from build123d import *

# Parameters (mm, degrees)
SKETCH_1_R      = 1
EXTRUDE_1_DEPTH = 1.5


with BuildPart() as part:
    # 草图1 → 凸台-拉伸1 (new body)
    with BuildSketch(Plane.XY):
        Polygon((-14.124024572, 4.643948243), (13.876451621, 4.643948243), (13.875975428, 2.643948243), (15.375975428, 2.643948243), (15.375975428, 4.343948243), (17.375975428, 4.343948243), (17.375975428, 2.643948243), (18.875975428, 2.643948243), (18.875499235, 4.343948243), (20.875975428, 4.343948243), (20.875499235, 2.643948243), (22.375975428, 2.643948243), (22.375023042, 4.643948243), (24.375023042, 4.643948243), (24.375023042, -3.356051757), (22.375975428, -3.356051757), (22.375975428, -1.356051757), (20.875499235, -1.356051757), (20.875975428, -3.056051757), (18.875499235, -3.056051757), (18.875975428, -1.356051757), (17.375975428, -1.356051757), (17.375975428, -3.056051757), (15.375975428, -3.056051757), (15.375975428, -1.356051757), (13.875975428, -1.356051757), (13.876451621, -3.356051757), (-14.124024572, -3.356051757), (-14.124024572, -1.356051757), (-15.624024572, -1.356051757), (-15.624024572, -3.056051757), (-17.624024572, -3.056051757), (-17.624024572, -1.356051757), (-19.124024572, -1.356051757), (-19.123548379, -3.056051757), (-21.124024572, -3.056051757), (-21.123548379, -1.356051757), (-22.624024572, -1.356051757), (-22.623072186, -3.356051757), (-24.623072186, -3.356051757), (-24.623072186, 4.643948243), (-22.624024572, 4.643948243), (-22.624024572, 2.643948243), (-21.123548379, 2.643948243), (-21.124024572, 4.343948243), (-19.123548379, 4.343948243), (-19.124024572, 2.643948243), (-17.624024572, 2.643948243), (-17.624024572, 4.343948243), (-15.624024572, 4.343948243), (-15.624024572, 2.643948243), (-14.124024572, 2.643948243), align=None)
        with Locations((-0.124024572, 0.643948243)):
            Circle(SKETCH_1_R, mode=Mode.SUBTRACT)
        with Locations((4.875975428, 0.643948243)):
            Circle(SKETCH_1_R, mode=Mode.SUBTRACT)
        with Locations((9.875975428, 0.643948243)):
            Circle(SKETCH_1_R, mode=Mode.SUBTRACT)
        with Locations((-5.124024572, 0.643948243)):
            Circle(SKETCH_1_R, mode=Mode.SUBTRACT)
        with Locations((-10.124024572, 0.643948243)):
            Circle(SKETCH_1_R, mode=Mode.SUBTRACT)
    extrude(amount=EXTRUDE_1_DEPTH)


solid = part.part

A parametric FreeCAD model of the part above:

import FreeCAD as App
import Part
import Sketcher
from FreeCAD import Vector

doc = App.newDocument("Part")
body = doc.addObject("PartDesign::Body", "Body")

# Sketch on XY plane
sketch1 = body.newObject("Sketcher::SketchObject", "Sketch")
sketch1.AttachmentSupport = (doc.getObject("XY_Plane"), [""])
sketch1.MapMode = "FlatFace"
sketch1.addGeometry([
    Part.LineSegment(Vector(13.9, 4.6, 0), Vector(-14.1, 4.6, 0)),  # 0
    Part.LineSegment(Vector(-14.1, 4.6, 0), Vector(-14.1, 2.6, 0)),  # 1
    Part.LineSegment(Vector(-14.1, 2.6, 0), Vector(-15.6, 2.6, 0)),  # 2
    Part.LineSegment(Vector(-15.6, 2.6, 0), Vector(-15.6, 4.3, 0)),  # 3
    Part.LineSegment(Vector(-15.6, 4.3, 0), Vector(-17.6, 4.3, 0)),  # 4
    Part.LineSegment(Vector(-17.6, 4.3, 0), Vector(-17.6, 2.6, 0)),  # 5
    Part.LineSegment(Vector(-17.6, 2.6, 0), Vector(-19.1, 2.6, 0)),  # 6
    Part.LineSegment(Vector(-19.1, 2.6, 0), Vector(-19.1, 4.3, 0)),  # 7
    Part.LineSegment(Vector(-19.1, 4.3, 0), Vector(-21.1, 4.3, 0)),  # 8
    Part.LineSegment(Vector(-21.1, 4.3, 0), Vector(-21.1, 2.6, 0)),  # 9
    Part.LineSegment(Vector(-21.1, 2.6, 0), Vector(-22.6, 2.6, 0)),  # 10
    Part.LineSegment(Vector(-22.6, 2.6, 0), Vector(-22.6, 4.6, 0)),  # 11
    Part.LineSegment(Vector(-22.6, 4.6, 0), Vector(-24.6, 4.6, 0)),  # 12
    Part.LineSegment(Vector(-24.6, 4.6, 0), Vector(-24.6, -3.4, 0)),  # 13
    Part.LineSegment(Vector(-24.6, -3.4, 0), Vector(-22.6, -3.4, 0)),  # 14
    Part.LineSegment(Vector(-22.6, -3.4, 0), Vector(-22.6, -1.4, 0)),  # 15
    Part.LineSegment(Vector(-22.6, -1.4, 0), Vector(-21.1, -1.4, 0)),  # 16
    Part.LineSegment(Vector(-21.1, -1.4, 0), Vector(-21.1, -3.1, 0)),  # 17
    Part.LineSegment(Vector(-21.1, -3.1, 0), Vector(-19.1, -3.1, 0)),  # 18
    Part.LineSegment(Vector(-19.1, -3.1, 0), Vector(-19.1, -1.4, 0)),  # 19
    Part.LineSegment(Vector(-19.1, -1.4, 0), Vector(-17.6, -1.4, 0)),  # 20
    Part.LineSegment(Vector(-17.6, -1.4, 0), Vector(-17.6, -3.1, 0)),  # 21
    Part.LineSegment(Vector(-17.6, -3.1, 0), Vector(-15.6, -3.1, 0)),  # 22
    Part.LineSegment(Vector(-15.6, -3.1, 0), Vector(-15.6, -1.4, 0)),  # 23
    Part.LineSegment(Vector(-15.6, -1.4, 0), Vector(-14.1, -1.4, 0)),  # 24
    Part.LineSegment(Vector(-14.1, -1.4, 0), Vector(-14.1, -3.4, 0)),  # 25
    Part.LineSegment(Vector(-14.1, -3.4, 0), Vector(13.9, -3.4, 0)),  # 26
    Part.LineSegment(Vector(13.9, -3.4, 0), Vector(13.9, -1.4, 0)),  # 27
    Part.LineSegment(Vector(13.9, -1.4, 0), Vector(15.4, -1.4, 0)),  # 28
    Part.LineSegment(Vector(15.4, -1.4, 0), Vector(15.4, -3.1, 0)),  # 29
    Part.LineSegment(Vector(15.4, -3.1, 0), Vector(17.4, -3.1, 0)),  # 30
    Part.LineSegment(Vector(17.4, -3.1, 0), Vector(17.4, -1.4, 0)),  # 31
    Part.LineSegment(Vector(17.4, -1.4, 0), Vector(18.9, -1.4, 0)),  # 32
    Part.LineSegment(Vector(18.9, -1.4, 0), Vector(18.9, -3.1, 0)),  # 33
    Part.LineSegment(Vector(18.9, -3.1, 0), Vector(20.9, -3.1, 0)),  # 34
    Part.LineSegment(Vector(20.9, -3.1, 0), Vector(20.9, -1.4, 0)),  # 35
    Part.LineSegment(Vector(20.9, -1.4, 0), Vector(22.4, -1.4, 0)),  # 36
    Part.LineSegment(Vector(22.4, -1.4, 0), Vector(22.4, -3.4, 0)),  # 37
    Part.LineSegment(Vector(22.4, -3.4, 0), Vector(24.4, -3.4, 0)),  # 38
    Part.LineSegment(Vector(24.4, -3.4, 0), Vector(24.4, 4.6, 0)),  # 39
    Part.LineSegment(Vector(24.4, 4.6, 0), Vector(22.4, 4.6, 0)),  # 40
    Part.LineSegment(Vector(22.4, 4.6, 0), Vector(22.4, 2.6, 0)),  # 41
    Part.LineSegment(Vector(22.4, 2.6, 0), Vector(20.9, 2.6, 0)),  # 42
    Part.LineSegment(Vector(20.9, 2.6, 0), Vector(20.9, 4.3, 0)),  # 43
    Part.LineSegment(Vector(20.9, 4.3, 0), Vector(18.9, 4.3, 0)),  # 44
    Part.LineSegment(Vector(18.9, 4.3, 0), Vector(18.9, 2.6, 0)),  # 45
    Part.LineSegment(Vector(18.9, 2.6, 0), Vector(17.4, 2.6, 0)),  # 46
    Part.LineSegment(Vector(17.4, 2.6, 0), Vector(17.4, 4.3, 0)),  # 47
    Part.LineSegment(Vector(17.4, 4.3, 0), Vector(15.4, 4.3, 0)),  # 48
    Part.LineSegment(Vector(15.4, 4.3, 0), Vector(15.4, 2.6, 0)),  # 49
    Part.LineSegment(Vector(15.4, 2.6, 0), Vector(13.9, 2.6, 0)),  # 50
    Part.LineSegment(Vector(13.9, 2.6, 0), Vector(13.9, 4.6, 0)),  # 51
    Part.Circle(Vector(9.9, 0.6, 0), Vector(0, 0, 1), 1),  # 52
    Part.Circle(Vector(4.9, 0.6, 0), Vector(0, 0, 1), 1),  # 53
    Part.Circle(Vector(-0.1, 0.6, 0), Vector(0, 0, 1), 1),  # 54
    Part.Circle(Vector(-5.1, 0.6, 0), Vector(0, 0, 1), 1),  # 55
    Part.Circle(Vector(-10.1, 0.6, 0), Vector(0, 0, 1), 1),  # 56
], False)
sketch1.addConstraint([
    Sketcher.Constraint("Coincident", 0, 2, 1, 1),
    Sketcher.Constraint("Coincident", 1, 2, 2, 1),
    Sketcher.Constraint("Coincident", 2, 2, 3, 1),
    Sketcher.Constraint("Coincident", 3, 2, 4, 1),
    Sketcher.Constraint("Coincident", 4, 2, 5, 1),
    Sketcher.Constraint("Coincident", 5, 2, 6, 1),
    Sketcher.Constraint("Coincident", 6, 2, 7, 1),
    Sketcher.Constraint("Coincident", 7, 2, 8, 1),
    Sketcher.Constraint("Coincident", 8, 2, 9, 1),
    Sketcher.Constraint("Coincident", 9, 2, 10, 1),
    Sketcher.Constraint("Coincident", 10, 2, 11, 1),
    Sketcher.Constraint("Coincident", 11, 2, 12, 1),
    Sketcher.Constraint("Coincident", 12, 2, 13, 1),
    Sketcher.Constraint("Coincident", 13, 2, 14, 1),
    Sketcher.Constraint("Coincident", 14, 2, 15, 1),
    Sketcher.Constraint("Coincident", 15, 2, 16, 1),
    Sketcher.Constraint("Coincident", 16, 2, 17, 1),
    Sketcher.Constraint("Coincident", 17, 2, 18, 1),
    Sketcher.Constraint("Coincident", 18, 2, 19, 1),
    Sketcher.Constraint("Coincident", 19, 2, 20, 1),
    Sketcher.Constraint("Coincident", 20, 2, 21, 1),
    Sketcher.Constraint("Coincident", 21, 2, 22, 1),
    Sketcher.Constraint("Coincident", 22, 2, 23, 1),
    Sketcher.Constraint("Coincident", 23, 2, 24, 1),
    Sketcher.Constraint("Coincident", 24, 2, 25, 1),
    Sketcher.Constraint("Coincident", 25, 2, 26, 1),
    Sketcher.Constraint("Coincident", 26, 2, 27, 1),
    Sketcher.Constraint("Coincident", 27, 2, 28, 1),
    Sketcher.Constraint("Coincident", 28, 2, 29, 1),
    Sketcher.Constraint("Coincident", 29, 2, 30, 1),
    Sketcher.Constraint("Coincident", 30, 2, 31, 1),
    Sketcher.Constraint("Coincident", 31, 2, 32, 1),
    Sketcher.Constraint("Coincident", 32, 2, 33, 1),
    Sketcher.Constraint("Coincident", 33, 2, 34, 1),
    Sketcher.Constraint("Coincident", 34, 2, 35, 1),
    Sketcher.Constraint("Coincident", 35, 2, 36, 1),
    Sketcher.Constraint("Coincident", 36, 2, 37, 1),
    Sketcher.Constraint("Coincident", 37, 2, 38, 1),
    Sketcher.Constraint("Coincident", 38, 2, 39, 1),
    Sketcher.Constraint("Coincident", 39, 2, 40, 1),
    Sketcher.Constraint("Coincident", 40, 2, 41, 1),
    Sketcher.Constraint("Coincident", 41, 2, 42, 1),
    Sketcher.Constraint("Coincident", 42, 2, 43, 1),
    Sketcher.Constraint("Coincident", 43, 2, 44, 1),
    Sketcher.Constraint("Coincident", 44, 2, 45, 1),
    Sketcher.Constraint("Coincident", 45, 2, 46, 1),
    Sketcher.Constraint("Coincident", 46, 2, 47, 1),
    Sketcher.Constraint("Coincident", 47, 2, 48, 1),
    Sketcher.Constraint("Coincident", 48, 2, 49, 1),
    Sketcher.Constraint("Coincident", 49, 2, 50, 1),
    Sketcher.Constraint("Coincident", 50, 2, 51, 1),
    Sketcher.Constraint("Coincident", 51, 2, 0, 1),
    Sketcher.Constraint("Horizontal", 0),
    Sketcher.Constraint("Vertical", 1),
    Sketcher.Constraint("Horizontal", 2),
    Sketcher.Constraint("Vertical", 3),
    Sketcher.Constraint("Horizontal", 4),
    Sketcher.Constraint("Vertical", 5),
    Sketcher.Constraint("Horizontal", 6),
    Sketcher.Constraint("Horizontal", 8),
    Sketcher.Constraint("Horizontal", 10),
    Sketcher.Constraint("Vertical", 11),
    Sketcher.Constraint("Horizontal", 12),
    Sketcher.Constraint("Vertical", 13),
    Sketcher.Constraint("Horizontal", 14),
    Sketcher.Constraint("Horizontal", 16),
    Sketcher.Constraint("Horizontal", 18),
    Sketcher.Constraint("Horizontal", 20),
    Sketcher.Constraint("Vertical", 21),
    Sketcher.Constraint("Horizontal", 22),
    Sketcher.Constraint("Vertical", 23),
    Sketcher.Constraint("Horizontal", 24),
    Sketcher.Constraint("Vertical", 25),
    Sketcher.Constraint("Horizontal", 26),
    Sketcher.Constraint("Horizontal", 28),
    Sketcher.Constraint("Vertical", 29),
    Sketcher.Constraint("Horizontal", 30),
    Sketcher.Constraint("Vertical", 31),
    Sketcher.Constraint("Horizontal", 32),
    Sketcher.Constraint("Horizontal", 34),
    Sketcher.Constraint("Horizontal", 36),
    Sketcher.Constraint("Vertical", 37),
    Sketcher.Constraint("Horizontal", 38),
    Sketcher.Constraint("Vertical", 39),
    Sketcher.Constraint("Horizontal", 40),
    Sketcher.Constraint("Horizontal", 42),
    Sketcher.Constraint("Horizontal", 44),
    Sketcher.Constraint("Horizontal", 46),
    Sketcher.Constraint("Vertical", 47),
    Sketcher.Constraint("Horizontal", 48),
    Sketcher.Constraint("Vertical", 49),
    Sketcher.Constraint("Horizontal", 50),
    Sketcher.Constraint("Equal", 52, 53),
    Sketcher.Constraint("Equal", 53, 54),
    Sketcher.Constraint("Equal", 54, 55),
    Sketcher.Constraint("Equal", 55, 56),
    Sketcher.Constraint("Parallel", 7, 17),
    Sketcher.Constraint("Parallel", 9, 19),
    Sketcher.Constraint("Parallel", 17, 33),
    Sketcher.Constraint("Parallel", 19, 35),
    Sketcher.Constraint("Parallel", 15, 41),
    Sketcher.Constraint("Parallel", 33, 43),
    Sketcher.Constraint("Parallel", 35, 45),
    Sketcher.Constraint("Horizontal", 52, 3, 53, 3),
    Sketcher.Constraint("Horizontal", 53, 3, 54, 3),
    Sketcher.Constraint("Horizontal", 54, 3, 55, 3),
    Sketcher.Constraint("Horizontal", 55, 3, 56, 3),
    Sketcher.Constraint("Horizontal", 2, 2, 5, 2),
    Sketcher.Constraint("Horizontal", 4, 2, 7, 2),
    Sketcher.Constraint("Horizontal", 6, 2, 9, 2),
    Sketcher.Constraint("Horizontal", 0, 2, 11, 2),
    Sketcher.Constraint("Horizontal", 16, 2, 19, 2),
    Sketcher.Constraint("Horizontal", 18, 2, 21, 2),
    Sketcher.Constraint("Horizontal", 20, 2, 23, 2),
    Sketcher.Constraint("Horizontal", 14, 2, 25, 2),
    Sketcher.Constraint("Horizontal", 24, 2, 27, 2),
    Sketcher.Constraint("Horizontal", 22, 2, 29, 2),
    Sketcher.Constraint("Horizontal", 28, 2, 31, 2),
    Sketcher.Constraint("Horizontal", 30, 2, 33, 2),
    Sketcher.Constraint("Horizontal", 32, 2, 35, 2),
    Sketcher.Constraint("Horizontal", 26, 2, 37, 2),
    Sketcher.Constraint("Horizontal", 12, 2, 39, 2),
    Sketcher.Constraint("Horizontal", 10, 2, 41, 2),
    Sketcher.Constraint("Horizontal", 8, 2, 43, 2),
    Sketcher.Constraint("Horizontal", 42, 2, 45, 2),
    Sketcher.Constraint("Horizontal", 44, 2, 47, 2),
    Sketcher.Constraint("Horizontal", 46, 2, 49, 2),
    Sketcher.Constraint("Vertical", 11, 2, 15, 2),
    Sketcher.Constraint("Vertical", 9, 2, 16, 2),
    Sketcher.Constraint("Vertical", 8, 2, 17, 2),
    Sketcher.Constraint("Vertical", 7, 2, 18, 2),
    Sketcher.Constraint("Vertical", 5, 2, 20, 2),
    Sketcher.Constraint("Vertical", 3, 2, 22, 2),
    Sketcher.Constraint("Vertical", 1, 2, 24, 2),
    Sketcher.Constraint("Vertical", 37, 2, 41, 2),
    Sketcher.Constraint("Vertical", 35, 2, 42, 2),
    Sketcher.Constraint("Vertical", 33, 2, 44, 2),
    Sketcher.Constraint("Vertical", 31, 2, 46, 2),
    Sketcher.Constraint("Vertical", 29, 2, 48, 2),
    Sketcher.Constraint("Vertical", 27, 2, 50, 2),
    Sketcher.Constraint("Vertical", 26, 2, 51, 2),
    Sketcher.Constraint("Equal", 2, 6),
    Sketcher.Constraint("Equal", 4, 14),
    Sketcher.Constraint("Equal", 24, 28),
    Sketcher.Constraint("Equal", 22, 30),
    Sketcher.Constraint("Equal", 28, 32),
    Sketcher.Constraint("Equal", 18, 34),
    Sketcher.Constraint("Equal", 16, 36),
    Sketcher.Constraint("Equal", 12, 38),
    Sketcher.Constraint("Equal", 48, 1),
    Sketcher.Constraint("Equal", 5, 21),
    Sketcher.Constraint("Equal", 11, 25),
    Sketcher.Constraint("Diameter", 52, 2.0),
    Sketcher.Constraint("DistanceX", 4, 2, 4, 1, 2.0),
    Sketcher.Constraint("DistanceY", 13, 2, 13, 1, 8.0),
    Sketcher.Constraint("DistanceX", 2, 2, 2, 1, 1.5),
    Sketcher.Constraint("DistanceY", 3, 1, 3, 2, 1.7),
    Sketcher.Constraint("DistanceX", 53, 3, 52, 3, 5.0),
    Sketcher.Constraint("DistanceX", 54, 3, 53, 3, 5.0),
    Sketcher.Constraint("DistanceX", 55, 3, 54, 3, 5.0),
    Sketcher.Constraint("DistanceX", 56, 3, 55, 3, 5.0),
    Sketcher.Constraint("DistanceX", 0, 2, 56, 3, 4.0),
    Sketcher.Constraint("DistanceY", 56, 3, 0, 2, 4.0),
    Sketcher.Constraint("DistanceX", 8, 2, 6, 2, 2.0),
    Sketcher.Constraint("DistanceX", 10, 2, 5, 2, 5.0),
    Sketcher.Constraint("DistanceX", 52, 3, 27, 2, 4.0),
    Sketcher.Constraint("DistanceX", -1, 1, 33, 2, 18.875499),
    Sketcher.Constraint("DistanceX", 0, 2, 0, 1, 28.000476),
    Sketcher.Constraint("DistanceX", 8, 2, 8, 1, 2.000476),
    Sketcher.Constraint("DistanceX", 12, 2, 12, 1, 1.999048),
    Sketcher.Constraint("DistanceY", -1, 1, 52, 3, 0.643948),
])
pad1 = body.newObject("PartDesign::Pad", "Pad")
pad1.Profile = sketch1
pad1.Length = 1.5

doc.recompute()
